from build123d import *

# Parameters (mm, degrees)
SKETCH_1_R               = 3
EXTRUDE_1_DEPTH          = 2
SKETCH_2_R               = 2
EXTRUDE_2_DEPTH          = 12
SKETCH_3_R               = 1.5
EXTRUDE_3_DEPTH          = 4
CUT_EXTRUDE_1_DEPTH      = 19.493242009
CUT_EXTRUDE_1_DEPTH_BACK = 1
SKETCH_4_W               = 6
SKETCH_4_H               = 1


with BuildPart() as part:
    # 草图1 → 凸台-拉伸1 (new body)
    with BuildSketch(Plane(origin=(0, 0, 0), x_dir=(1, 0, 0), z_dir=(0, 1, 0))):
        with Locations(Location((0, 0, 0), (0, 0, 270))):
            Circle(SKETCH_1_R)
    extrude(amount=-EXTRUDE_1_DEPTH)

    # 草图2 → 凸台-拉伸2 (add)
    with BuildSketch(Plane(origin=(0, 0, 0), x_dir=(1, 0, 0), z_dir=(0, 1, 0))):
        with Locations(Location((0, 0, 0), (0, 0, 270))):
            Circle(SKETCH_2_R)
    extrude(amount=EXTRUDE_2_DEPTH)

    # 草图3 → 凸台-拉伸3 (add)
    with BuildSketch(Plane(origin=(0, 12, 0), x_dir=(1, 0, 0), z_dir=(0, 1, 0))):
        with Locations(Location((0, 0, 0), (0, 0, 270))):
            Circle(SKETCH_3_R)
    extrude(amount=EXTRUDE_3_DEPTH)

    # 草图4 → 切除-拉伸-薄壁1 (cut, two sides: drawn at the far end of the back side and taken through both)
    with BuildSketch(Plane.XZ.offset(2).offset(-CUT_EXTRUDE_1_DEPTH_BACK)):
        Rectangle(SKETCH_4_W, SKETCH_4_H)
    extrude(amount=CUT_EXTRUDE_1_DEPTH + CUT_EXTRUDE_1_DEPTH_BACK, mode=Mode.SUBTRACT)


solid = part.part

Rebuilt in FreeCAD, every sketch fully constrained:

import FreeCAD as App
import Part
import Sketcher
Q = App.Units.Quantity


def add_polygon(sketch, points):
    """Adds a closed chain of lines whose ends are joined by coincident constraints."""
    first, n = sketch.GeometryCount, len(points)
    for a, b in zip(points, points[1:] + points[:1]):
        sketch.addGeometry(Part.LineSegment(App.Vector(*a, 0), App.Vector(*b, 0)), False)
    for i in range(n):
        sketch.addConstraint(Sketcher.Constraint("Coincident", first + i, 2, first + (i + 1) % n, 1))

doc = App.newDocument("Part")
body = doc.addObject("PartDesign::Body", "Body")

# Sketch on XZ plane
sketch1 = body.newObject("Sketcher::SketchObject", "Sketch")
sketch1.AttachmentSupport = (doc.getObject("XZ_Plane"), [""])
sketch1.MapMode = "FlatFace"
sketch1.addGeometry(Part.Circle(App.Vector(0, 0, 0), App.Vector(0, 0, 1), 3), False)
sketch1.addConstraint(Sketcher.Constraint("Coincident", 0, 3, -1, 1))
sketch1.addConstraint(Sketcher.Constraint("Diameter", 0, Q("6 mm")))
pad1 = body.newObject("PartDesign::Pad", "Pad")
pad1.Profile = sketch1
pad1.Length = 2

# Sketch on XZ plane
sketch2 = body.newObject("Sketcher::SketchObject", "Sketch001")
sketch2.AttachmentSupport = (doc.getObject("XZ_Plane"), [""])
sketch2.MapMode = "FlatFace"
sketch2.addGeometry(Part.Circle(App.Vector(0, 0, 0), App.Vector(0, 0, 1), 2), False)
sketch2.addConstraint(Sketcher.Constraint("Coincident", 0, 3, -1, 1))
sketch2.addConstraint(Sketcher.Constraint("Diameter", 0, Q("4 mm")))
pad2 = body.newObject("PartDesign::Pad", "Pad001")
pad2.Profile = sketch2
pad2.Length = 12
pad2.Reversed = True

# Sketch on XZ plane
sketch3 = body.newObject("Sketcher::SketchObject", "Sketch002")
sketch3.AttachmentSupport = (doc.getObject("XZ_Plane"), [""])
sketch3.MapMode = "FlatFace"
sketch3.AttachmentOffset = App.Placement(App.Vector(0, 0, -12), App.Rotation())
sketch3.addGeometry(Part.Circle(App.Vector(0, 0, 0), App.Vector(0, 0, 1), 1.5), False)
sketch3.addConstraint(Sketcher.Constraint("Coincident", 0, 3, -1, 1))
sketch3.addConstraint(Sketcher.Constraint("Diameter", 0, Q("3 mm")))
pad3 = body.newObject("PartDesign::Pad", "Pad002")
pad3.Profile = sketch3
pad3.Length = 4
pad3.Reversed = True

# Sketch on XZ plane
sketch4 = body.newObject("Sketcher::SketchObject", "Sketch003")
sketch4.AttachmentSupport = (doc.getObject("XZ_Plane"), [""])
sketch4.MapMode = "FlatFace"
sketch4.AttachmentOffset = App.Placement(App.Vector(0, 0, 2), App.Rotation())
add_polygon(sketch4, [(-3, 0.5), (-3, -0.5), (3, -0.5), (3, 0.5)])  # lines 0-3
sketch4.addConstraint(Sketcher.Constraint("Vertical", 0))
sketch4.addConstraint(Sketcher.Constraint("Horizontal", 1))
sketch4.addConstraint(Sketcher.Constraint("Vertical", 2))
sketch4.addConstraint(Sketcher.Constraint("Horizontal", 3))
sketch4.addConstraint(Sketcher.Constraint("Symmetric", 0, 2, 2, 2, -1, 1))
sketch4.addConstraint(Sketcher.Constraint("DistanceX", 1, 1, 1, 2, Q("6 mm")))
sketch4.addConstraint(Sketcher.Constraint("DistanceY", 0, 2, 0, 1, Q("1 mm")))
pocket1 = body.newObject("PartDesign::Pocket", "Pocket")
pocket1.Profile = sketch4
pocket1.Type = "TwoLengths"
pocket1.Length = 19.493242
pocket1.Length2 = 1
pocket1.Reversed = True

doc.recompute()
